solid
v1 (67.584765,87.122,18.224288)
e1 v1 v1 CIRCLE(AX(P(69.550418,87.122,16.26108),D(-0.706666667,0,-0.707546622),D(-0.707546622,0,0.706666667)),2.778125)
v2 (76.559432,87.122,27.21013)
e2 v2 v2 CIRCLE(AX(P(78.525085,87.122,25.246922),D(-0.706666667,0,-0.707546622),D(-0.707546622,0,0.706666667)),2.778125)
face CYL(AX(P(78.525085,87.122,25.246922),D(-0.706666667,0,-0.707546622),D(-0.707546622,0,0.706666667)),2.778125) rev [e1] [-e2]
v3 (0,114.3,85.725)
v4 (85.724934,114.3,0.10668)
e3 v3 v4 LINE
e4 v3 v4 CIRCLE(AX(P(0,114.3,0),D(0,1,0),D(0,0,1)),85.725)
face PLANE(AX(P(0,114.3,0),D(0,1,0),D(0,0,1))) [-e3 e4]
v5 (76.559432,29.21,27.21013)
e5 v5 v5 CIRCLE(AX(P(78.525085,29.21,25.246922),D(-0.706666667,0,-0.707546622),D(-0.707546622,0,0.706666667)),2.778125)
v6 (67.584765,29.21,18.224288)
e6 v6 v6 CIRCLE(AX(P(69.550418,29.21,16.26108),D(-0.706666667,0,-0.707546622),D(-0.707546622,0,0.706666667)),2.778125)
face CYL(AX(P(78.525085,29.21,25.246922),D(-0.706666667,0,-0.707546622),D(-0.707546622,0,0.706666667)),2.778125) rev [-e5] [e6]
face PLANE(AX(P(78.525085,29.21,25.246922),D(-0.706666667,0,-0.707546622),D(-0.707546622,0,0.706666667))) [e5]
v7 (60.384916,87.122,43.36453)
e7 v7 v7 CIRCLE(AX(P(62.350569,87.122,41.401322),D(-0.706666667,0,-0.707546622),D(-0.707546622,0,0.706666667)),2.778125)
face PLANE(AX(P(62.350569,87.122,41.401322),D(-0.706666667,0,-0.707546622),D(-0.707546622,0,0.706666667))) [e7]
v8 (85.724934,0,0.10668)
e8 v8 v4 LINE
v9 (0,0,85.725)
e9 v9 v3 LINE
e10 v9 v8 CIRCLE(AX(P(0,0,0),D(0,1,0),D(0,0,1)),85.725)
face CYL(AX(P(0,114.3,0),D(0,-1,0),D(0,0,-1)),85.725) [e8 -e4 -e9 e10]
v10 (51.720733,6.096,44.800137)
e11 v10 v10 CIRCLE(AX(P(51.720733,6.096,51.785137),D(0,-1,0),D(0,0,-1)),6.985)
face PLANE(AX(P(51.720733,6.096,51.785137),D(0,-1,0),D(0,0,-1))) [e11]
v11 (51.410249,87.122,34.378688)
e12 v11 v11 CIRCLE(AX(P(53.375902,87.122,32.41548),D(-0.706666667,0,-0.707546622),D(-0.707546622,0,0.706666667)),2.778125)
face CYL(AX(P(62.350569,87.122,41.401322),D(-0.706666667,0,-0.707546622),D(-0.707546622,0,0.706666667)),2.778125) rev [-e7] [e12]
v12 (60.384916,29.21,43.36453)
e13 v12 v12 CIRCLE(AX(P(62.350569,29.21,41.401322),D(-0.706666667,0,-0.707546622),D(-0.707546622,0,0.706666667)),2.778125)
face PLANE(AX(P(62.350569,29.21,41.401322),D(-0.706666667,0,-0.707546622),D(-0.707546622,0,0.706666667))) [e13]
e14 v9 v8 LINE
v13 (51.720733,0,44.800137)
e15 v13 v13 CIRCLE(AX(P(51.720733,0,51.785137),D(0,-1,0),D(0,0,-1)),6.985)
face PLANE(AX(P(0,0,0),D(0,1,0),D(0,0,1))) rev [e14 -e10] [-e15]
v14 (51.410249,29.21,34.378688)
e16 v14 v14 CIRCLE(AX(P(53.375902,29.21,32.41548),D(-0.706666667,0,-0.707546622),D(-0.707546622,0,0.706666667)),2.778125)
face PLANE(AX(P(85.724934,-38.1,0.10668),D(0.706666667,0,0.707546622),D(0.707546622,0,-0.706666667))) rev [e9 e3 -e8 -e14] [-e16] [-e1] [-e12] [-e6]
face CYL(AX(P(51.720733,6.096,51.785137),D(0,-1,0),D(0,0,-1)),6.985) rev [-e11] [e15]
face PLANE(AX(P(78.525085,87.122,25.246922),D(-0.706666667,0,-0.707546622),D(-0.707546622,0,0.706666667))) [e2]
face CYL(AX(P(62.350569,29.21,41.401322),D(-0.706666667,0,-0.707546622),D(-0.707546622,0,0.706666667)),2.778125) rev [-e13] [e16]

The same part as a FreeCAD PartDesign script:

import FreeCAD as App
import Part
import Sketcher
Q = App.Units.Quantity

doc = App.newDocument("Part")
body = doc.addObject("PartDesign::Body", "Body")

# Sketch on XZ plane
sketch1 = body.newObject("Sketcher::SketchObject", "Sketch")
sketch1.AttachmentSupport = (doc.getObject("XZ_Plane"), [""])
sketch1.MapMode = "FlatFace"
sketch1.addGeometry(Part.Circle(App.Vector(0, 0, 0), App.Vector(0, 0, 1), 86), False)
sketch1.addConstraint([
    Sketcher.Constraint("Coincident", 0, 3, -1, 1),
    Sketcher.Constraint("Diameter", 0, Q("6.75 in")),
])
pad1 = body.newObject("PartDesign::Pad", "Pad")
pad1.Profile = sketch1
pad1.Length = Q("4.5 in")
pad1.Reversed = True

# Sketch on XZ plane
sketch2 = body.newObject("Sketcher::SketchObject", "Sketch001")
sketch2.AttachmentSupport = (doc.getObject("XZ_Plane"), [""])
sketch2.MapMode = "FlatFace"
sketch2.AttachmentOffset = App.Placement(App.Vector(0, 0, -4.5 * 25.4), App.Rotation())
sketch2.addGeometry([
    Part.LineSegment(App.Vector(0, 86, 0), App.Vector(86, 0, 0)),  # 0
    Part.LineSegment(App.Vector(86, 0, 0), App.Vector(110, -31, 0)),  # 1
    Part.LineSegment(App.Vector(110, -31, 0), App.Vector(19, -102, 0)),  # 2
    Part.LineSegment(App.Vector(19, -102, 0), App.Vector(-137, -46, 0)),  # 3
    Part.LineSegment(App.Vector(-137, -46, 0), App.Vector(-46, 97, 0)),  # 4
    Part.LineSegment(App.Vector(-46, 97, 0), App.Vector(0, 86, 0)),  # 5
], False)
sketch2.addConstraint([
    Sketcher.Constraint("Coincident", 0, 2, 1, 1),
    Sketcher.Constraint("Coincident", 1, 2, 2, 1),
    Sketcher.Constraint("Coincident", 2, 2, 3, 1),
    Sketcher.Constraint("Coincident", 3, 2, 4, 1),
    Sketcher.Constraint("Coincident", 4, 2, 5, 1),
    Sketcher.Constraint("Coincident", 5, 2, 0, 1),
    Sketcher.Constraint("PointOnObject", 5, 2, -2),
    Sketcher.Constraint("Distance", 0, Q("4.77 in")),
    Sketcher.Constraint("DistanceY", -1, 1, 5, 2, Q("3.375 in")),
    Sketcher.Constraint("DistanceY", -1, 1, 0, 2, Q("0.0042 in")),
    Sketcher.Constraint("DistanceX", -1, 1, 2, 2, 19.125301),
    Sketcher.Constraint("DistanceY", 0, 2, 4, 2, 96.6127),
    Sketcher.Constraint("Distance", 1, 39.040629),
    Sketcher.Constraint("Distance", 4, 169.841122),
    Sketcher.Constraint("DistanceY", 1, 2, -1, 1, 30.600482),
    Sketcher.Constraint("DistanceX", 3, 2, -1, 1, 137.42895),
    Sketcher.Constraint("DistanceY", 3, 2, -1, 1, 46.173941),
    Sketcher.Constraint("DistanceY", 2, 2, 1, 2, 71.310051),
])
pocket1 = body.newObject("PartDesign::Pocket", "Pocket")
pocket1.Profile = sketch2
pocket1.Length = Q("6 in")
pocket1.Reversed = True

# Sketch on an angled plane
sketch3 = body.newObject("Sketcher::SketchObject", "Sketch002")
sketch3.Placement = App.Placement(App.Vector(42.862467, 0, 42.91584), App.Rotation(App.Vector(-0.707546622, 0, 0.706666667), App.Vector(0, 1.000000001, 0), App.Vector(-0.706666667, 0, -0.707546622), "ZXY"))
sketch3.addGeometry([
    Part.Circle(App.Vector(-37.7, 87.1, 0), App.Vector(0, 0, 1), 2.8),
    Part.Circle(App.Vector(-14.9, 87.1, 0), App.Vector(0, 0, 1), 2.8),
    Part.Circle(App.Vector(-37.7, 29.2, 0), App.Vector(0, 0, 1), 2.8),
    Part.Circle(App.Vector(-14.9, 29.2, 0), App.Vector(0, 0, 1), 2.8),
], False)
sketch3.addConstraint([
    Sketcher.Constraint("Equal", 0, 1),
    Sketcher.Constraint("Equal", 1, 2),
    Sketcher.Constraint("Equal", 2, 3),
    Sketcher.Constraint("Horizontal", 0, 3, 1, 3),
    Sketcher.Constraint("Horizontal", 2, 3, 3, 3),
    Sketcher.Constraint("Vertical", 0, 3, 2, 3),
    Sketcher.Constraint("Vertical", 1, 3, 3, 3),
    Sketcher.Constraint("Diameter", 0, Q("0.21875 in")),
    Sketcher.Constraint("DistanceX", 0, 3, 1, 3, Q("0.9 in")),
    Sketcher.Constraint("DistanceY", -1, 1, 0, 3, Q("3.43 in")),
    Sketcher.Constraint("DistanceY", -1, 1, 2, 3, Q("1.15 in")),
    Sketcher.Constraint("DistanceX", 0, 3, -1, 1, Q("1.485 in")),
])
pocket2 = body.newObject("PartDesign::Pocket", "Pocket001")
pocket2.Profile = sketch3
pocket2.Length = Q("0.5 in")

# Sketch on XZ plane
sketch4 = body.newObject("Sketcher::SketchObject", "Sketch003")
sketch4.AttachmentSupport = (doc.getObject("XZ_Plane"), [""])
sketch4.MapMode = "FlatFace"
sketch4.addGeometry(Part.Circle(App.Vector(52, 52, 0), App.Vector(0, 0, 1), 7), False)
sketch4.addConstraint([
    Sketcher.Constraint("Diameter", 0, Q("0.55 in")),
    Sketcher.Constraint("DistanceX", -1, 1, 0, 3, 51.720733),
    Sketcher.Constraint("DistanceY", -1, 1, 0, 3, 51.785137),
])
pocket3 = body.newObject("PartDesign::Pocket", "Pocket002")
pocket3.Profile = sketch4
pocket3.Length = Q("0.24 in")

doc.recompute()
